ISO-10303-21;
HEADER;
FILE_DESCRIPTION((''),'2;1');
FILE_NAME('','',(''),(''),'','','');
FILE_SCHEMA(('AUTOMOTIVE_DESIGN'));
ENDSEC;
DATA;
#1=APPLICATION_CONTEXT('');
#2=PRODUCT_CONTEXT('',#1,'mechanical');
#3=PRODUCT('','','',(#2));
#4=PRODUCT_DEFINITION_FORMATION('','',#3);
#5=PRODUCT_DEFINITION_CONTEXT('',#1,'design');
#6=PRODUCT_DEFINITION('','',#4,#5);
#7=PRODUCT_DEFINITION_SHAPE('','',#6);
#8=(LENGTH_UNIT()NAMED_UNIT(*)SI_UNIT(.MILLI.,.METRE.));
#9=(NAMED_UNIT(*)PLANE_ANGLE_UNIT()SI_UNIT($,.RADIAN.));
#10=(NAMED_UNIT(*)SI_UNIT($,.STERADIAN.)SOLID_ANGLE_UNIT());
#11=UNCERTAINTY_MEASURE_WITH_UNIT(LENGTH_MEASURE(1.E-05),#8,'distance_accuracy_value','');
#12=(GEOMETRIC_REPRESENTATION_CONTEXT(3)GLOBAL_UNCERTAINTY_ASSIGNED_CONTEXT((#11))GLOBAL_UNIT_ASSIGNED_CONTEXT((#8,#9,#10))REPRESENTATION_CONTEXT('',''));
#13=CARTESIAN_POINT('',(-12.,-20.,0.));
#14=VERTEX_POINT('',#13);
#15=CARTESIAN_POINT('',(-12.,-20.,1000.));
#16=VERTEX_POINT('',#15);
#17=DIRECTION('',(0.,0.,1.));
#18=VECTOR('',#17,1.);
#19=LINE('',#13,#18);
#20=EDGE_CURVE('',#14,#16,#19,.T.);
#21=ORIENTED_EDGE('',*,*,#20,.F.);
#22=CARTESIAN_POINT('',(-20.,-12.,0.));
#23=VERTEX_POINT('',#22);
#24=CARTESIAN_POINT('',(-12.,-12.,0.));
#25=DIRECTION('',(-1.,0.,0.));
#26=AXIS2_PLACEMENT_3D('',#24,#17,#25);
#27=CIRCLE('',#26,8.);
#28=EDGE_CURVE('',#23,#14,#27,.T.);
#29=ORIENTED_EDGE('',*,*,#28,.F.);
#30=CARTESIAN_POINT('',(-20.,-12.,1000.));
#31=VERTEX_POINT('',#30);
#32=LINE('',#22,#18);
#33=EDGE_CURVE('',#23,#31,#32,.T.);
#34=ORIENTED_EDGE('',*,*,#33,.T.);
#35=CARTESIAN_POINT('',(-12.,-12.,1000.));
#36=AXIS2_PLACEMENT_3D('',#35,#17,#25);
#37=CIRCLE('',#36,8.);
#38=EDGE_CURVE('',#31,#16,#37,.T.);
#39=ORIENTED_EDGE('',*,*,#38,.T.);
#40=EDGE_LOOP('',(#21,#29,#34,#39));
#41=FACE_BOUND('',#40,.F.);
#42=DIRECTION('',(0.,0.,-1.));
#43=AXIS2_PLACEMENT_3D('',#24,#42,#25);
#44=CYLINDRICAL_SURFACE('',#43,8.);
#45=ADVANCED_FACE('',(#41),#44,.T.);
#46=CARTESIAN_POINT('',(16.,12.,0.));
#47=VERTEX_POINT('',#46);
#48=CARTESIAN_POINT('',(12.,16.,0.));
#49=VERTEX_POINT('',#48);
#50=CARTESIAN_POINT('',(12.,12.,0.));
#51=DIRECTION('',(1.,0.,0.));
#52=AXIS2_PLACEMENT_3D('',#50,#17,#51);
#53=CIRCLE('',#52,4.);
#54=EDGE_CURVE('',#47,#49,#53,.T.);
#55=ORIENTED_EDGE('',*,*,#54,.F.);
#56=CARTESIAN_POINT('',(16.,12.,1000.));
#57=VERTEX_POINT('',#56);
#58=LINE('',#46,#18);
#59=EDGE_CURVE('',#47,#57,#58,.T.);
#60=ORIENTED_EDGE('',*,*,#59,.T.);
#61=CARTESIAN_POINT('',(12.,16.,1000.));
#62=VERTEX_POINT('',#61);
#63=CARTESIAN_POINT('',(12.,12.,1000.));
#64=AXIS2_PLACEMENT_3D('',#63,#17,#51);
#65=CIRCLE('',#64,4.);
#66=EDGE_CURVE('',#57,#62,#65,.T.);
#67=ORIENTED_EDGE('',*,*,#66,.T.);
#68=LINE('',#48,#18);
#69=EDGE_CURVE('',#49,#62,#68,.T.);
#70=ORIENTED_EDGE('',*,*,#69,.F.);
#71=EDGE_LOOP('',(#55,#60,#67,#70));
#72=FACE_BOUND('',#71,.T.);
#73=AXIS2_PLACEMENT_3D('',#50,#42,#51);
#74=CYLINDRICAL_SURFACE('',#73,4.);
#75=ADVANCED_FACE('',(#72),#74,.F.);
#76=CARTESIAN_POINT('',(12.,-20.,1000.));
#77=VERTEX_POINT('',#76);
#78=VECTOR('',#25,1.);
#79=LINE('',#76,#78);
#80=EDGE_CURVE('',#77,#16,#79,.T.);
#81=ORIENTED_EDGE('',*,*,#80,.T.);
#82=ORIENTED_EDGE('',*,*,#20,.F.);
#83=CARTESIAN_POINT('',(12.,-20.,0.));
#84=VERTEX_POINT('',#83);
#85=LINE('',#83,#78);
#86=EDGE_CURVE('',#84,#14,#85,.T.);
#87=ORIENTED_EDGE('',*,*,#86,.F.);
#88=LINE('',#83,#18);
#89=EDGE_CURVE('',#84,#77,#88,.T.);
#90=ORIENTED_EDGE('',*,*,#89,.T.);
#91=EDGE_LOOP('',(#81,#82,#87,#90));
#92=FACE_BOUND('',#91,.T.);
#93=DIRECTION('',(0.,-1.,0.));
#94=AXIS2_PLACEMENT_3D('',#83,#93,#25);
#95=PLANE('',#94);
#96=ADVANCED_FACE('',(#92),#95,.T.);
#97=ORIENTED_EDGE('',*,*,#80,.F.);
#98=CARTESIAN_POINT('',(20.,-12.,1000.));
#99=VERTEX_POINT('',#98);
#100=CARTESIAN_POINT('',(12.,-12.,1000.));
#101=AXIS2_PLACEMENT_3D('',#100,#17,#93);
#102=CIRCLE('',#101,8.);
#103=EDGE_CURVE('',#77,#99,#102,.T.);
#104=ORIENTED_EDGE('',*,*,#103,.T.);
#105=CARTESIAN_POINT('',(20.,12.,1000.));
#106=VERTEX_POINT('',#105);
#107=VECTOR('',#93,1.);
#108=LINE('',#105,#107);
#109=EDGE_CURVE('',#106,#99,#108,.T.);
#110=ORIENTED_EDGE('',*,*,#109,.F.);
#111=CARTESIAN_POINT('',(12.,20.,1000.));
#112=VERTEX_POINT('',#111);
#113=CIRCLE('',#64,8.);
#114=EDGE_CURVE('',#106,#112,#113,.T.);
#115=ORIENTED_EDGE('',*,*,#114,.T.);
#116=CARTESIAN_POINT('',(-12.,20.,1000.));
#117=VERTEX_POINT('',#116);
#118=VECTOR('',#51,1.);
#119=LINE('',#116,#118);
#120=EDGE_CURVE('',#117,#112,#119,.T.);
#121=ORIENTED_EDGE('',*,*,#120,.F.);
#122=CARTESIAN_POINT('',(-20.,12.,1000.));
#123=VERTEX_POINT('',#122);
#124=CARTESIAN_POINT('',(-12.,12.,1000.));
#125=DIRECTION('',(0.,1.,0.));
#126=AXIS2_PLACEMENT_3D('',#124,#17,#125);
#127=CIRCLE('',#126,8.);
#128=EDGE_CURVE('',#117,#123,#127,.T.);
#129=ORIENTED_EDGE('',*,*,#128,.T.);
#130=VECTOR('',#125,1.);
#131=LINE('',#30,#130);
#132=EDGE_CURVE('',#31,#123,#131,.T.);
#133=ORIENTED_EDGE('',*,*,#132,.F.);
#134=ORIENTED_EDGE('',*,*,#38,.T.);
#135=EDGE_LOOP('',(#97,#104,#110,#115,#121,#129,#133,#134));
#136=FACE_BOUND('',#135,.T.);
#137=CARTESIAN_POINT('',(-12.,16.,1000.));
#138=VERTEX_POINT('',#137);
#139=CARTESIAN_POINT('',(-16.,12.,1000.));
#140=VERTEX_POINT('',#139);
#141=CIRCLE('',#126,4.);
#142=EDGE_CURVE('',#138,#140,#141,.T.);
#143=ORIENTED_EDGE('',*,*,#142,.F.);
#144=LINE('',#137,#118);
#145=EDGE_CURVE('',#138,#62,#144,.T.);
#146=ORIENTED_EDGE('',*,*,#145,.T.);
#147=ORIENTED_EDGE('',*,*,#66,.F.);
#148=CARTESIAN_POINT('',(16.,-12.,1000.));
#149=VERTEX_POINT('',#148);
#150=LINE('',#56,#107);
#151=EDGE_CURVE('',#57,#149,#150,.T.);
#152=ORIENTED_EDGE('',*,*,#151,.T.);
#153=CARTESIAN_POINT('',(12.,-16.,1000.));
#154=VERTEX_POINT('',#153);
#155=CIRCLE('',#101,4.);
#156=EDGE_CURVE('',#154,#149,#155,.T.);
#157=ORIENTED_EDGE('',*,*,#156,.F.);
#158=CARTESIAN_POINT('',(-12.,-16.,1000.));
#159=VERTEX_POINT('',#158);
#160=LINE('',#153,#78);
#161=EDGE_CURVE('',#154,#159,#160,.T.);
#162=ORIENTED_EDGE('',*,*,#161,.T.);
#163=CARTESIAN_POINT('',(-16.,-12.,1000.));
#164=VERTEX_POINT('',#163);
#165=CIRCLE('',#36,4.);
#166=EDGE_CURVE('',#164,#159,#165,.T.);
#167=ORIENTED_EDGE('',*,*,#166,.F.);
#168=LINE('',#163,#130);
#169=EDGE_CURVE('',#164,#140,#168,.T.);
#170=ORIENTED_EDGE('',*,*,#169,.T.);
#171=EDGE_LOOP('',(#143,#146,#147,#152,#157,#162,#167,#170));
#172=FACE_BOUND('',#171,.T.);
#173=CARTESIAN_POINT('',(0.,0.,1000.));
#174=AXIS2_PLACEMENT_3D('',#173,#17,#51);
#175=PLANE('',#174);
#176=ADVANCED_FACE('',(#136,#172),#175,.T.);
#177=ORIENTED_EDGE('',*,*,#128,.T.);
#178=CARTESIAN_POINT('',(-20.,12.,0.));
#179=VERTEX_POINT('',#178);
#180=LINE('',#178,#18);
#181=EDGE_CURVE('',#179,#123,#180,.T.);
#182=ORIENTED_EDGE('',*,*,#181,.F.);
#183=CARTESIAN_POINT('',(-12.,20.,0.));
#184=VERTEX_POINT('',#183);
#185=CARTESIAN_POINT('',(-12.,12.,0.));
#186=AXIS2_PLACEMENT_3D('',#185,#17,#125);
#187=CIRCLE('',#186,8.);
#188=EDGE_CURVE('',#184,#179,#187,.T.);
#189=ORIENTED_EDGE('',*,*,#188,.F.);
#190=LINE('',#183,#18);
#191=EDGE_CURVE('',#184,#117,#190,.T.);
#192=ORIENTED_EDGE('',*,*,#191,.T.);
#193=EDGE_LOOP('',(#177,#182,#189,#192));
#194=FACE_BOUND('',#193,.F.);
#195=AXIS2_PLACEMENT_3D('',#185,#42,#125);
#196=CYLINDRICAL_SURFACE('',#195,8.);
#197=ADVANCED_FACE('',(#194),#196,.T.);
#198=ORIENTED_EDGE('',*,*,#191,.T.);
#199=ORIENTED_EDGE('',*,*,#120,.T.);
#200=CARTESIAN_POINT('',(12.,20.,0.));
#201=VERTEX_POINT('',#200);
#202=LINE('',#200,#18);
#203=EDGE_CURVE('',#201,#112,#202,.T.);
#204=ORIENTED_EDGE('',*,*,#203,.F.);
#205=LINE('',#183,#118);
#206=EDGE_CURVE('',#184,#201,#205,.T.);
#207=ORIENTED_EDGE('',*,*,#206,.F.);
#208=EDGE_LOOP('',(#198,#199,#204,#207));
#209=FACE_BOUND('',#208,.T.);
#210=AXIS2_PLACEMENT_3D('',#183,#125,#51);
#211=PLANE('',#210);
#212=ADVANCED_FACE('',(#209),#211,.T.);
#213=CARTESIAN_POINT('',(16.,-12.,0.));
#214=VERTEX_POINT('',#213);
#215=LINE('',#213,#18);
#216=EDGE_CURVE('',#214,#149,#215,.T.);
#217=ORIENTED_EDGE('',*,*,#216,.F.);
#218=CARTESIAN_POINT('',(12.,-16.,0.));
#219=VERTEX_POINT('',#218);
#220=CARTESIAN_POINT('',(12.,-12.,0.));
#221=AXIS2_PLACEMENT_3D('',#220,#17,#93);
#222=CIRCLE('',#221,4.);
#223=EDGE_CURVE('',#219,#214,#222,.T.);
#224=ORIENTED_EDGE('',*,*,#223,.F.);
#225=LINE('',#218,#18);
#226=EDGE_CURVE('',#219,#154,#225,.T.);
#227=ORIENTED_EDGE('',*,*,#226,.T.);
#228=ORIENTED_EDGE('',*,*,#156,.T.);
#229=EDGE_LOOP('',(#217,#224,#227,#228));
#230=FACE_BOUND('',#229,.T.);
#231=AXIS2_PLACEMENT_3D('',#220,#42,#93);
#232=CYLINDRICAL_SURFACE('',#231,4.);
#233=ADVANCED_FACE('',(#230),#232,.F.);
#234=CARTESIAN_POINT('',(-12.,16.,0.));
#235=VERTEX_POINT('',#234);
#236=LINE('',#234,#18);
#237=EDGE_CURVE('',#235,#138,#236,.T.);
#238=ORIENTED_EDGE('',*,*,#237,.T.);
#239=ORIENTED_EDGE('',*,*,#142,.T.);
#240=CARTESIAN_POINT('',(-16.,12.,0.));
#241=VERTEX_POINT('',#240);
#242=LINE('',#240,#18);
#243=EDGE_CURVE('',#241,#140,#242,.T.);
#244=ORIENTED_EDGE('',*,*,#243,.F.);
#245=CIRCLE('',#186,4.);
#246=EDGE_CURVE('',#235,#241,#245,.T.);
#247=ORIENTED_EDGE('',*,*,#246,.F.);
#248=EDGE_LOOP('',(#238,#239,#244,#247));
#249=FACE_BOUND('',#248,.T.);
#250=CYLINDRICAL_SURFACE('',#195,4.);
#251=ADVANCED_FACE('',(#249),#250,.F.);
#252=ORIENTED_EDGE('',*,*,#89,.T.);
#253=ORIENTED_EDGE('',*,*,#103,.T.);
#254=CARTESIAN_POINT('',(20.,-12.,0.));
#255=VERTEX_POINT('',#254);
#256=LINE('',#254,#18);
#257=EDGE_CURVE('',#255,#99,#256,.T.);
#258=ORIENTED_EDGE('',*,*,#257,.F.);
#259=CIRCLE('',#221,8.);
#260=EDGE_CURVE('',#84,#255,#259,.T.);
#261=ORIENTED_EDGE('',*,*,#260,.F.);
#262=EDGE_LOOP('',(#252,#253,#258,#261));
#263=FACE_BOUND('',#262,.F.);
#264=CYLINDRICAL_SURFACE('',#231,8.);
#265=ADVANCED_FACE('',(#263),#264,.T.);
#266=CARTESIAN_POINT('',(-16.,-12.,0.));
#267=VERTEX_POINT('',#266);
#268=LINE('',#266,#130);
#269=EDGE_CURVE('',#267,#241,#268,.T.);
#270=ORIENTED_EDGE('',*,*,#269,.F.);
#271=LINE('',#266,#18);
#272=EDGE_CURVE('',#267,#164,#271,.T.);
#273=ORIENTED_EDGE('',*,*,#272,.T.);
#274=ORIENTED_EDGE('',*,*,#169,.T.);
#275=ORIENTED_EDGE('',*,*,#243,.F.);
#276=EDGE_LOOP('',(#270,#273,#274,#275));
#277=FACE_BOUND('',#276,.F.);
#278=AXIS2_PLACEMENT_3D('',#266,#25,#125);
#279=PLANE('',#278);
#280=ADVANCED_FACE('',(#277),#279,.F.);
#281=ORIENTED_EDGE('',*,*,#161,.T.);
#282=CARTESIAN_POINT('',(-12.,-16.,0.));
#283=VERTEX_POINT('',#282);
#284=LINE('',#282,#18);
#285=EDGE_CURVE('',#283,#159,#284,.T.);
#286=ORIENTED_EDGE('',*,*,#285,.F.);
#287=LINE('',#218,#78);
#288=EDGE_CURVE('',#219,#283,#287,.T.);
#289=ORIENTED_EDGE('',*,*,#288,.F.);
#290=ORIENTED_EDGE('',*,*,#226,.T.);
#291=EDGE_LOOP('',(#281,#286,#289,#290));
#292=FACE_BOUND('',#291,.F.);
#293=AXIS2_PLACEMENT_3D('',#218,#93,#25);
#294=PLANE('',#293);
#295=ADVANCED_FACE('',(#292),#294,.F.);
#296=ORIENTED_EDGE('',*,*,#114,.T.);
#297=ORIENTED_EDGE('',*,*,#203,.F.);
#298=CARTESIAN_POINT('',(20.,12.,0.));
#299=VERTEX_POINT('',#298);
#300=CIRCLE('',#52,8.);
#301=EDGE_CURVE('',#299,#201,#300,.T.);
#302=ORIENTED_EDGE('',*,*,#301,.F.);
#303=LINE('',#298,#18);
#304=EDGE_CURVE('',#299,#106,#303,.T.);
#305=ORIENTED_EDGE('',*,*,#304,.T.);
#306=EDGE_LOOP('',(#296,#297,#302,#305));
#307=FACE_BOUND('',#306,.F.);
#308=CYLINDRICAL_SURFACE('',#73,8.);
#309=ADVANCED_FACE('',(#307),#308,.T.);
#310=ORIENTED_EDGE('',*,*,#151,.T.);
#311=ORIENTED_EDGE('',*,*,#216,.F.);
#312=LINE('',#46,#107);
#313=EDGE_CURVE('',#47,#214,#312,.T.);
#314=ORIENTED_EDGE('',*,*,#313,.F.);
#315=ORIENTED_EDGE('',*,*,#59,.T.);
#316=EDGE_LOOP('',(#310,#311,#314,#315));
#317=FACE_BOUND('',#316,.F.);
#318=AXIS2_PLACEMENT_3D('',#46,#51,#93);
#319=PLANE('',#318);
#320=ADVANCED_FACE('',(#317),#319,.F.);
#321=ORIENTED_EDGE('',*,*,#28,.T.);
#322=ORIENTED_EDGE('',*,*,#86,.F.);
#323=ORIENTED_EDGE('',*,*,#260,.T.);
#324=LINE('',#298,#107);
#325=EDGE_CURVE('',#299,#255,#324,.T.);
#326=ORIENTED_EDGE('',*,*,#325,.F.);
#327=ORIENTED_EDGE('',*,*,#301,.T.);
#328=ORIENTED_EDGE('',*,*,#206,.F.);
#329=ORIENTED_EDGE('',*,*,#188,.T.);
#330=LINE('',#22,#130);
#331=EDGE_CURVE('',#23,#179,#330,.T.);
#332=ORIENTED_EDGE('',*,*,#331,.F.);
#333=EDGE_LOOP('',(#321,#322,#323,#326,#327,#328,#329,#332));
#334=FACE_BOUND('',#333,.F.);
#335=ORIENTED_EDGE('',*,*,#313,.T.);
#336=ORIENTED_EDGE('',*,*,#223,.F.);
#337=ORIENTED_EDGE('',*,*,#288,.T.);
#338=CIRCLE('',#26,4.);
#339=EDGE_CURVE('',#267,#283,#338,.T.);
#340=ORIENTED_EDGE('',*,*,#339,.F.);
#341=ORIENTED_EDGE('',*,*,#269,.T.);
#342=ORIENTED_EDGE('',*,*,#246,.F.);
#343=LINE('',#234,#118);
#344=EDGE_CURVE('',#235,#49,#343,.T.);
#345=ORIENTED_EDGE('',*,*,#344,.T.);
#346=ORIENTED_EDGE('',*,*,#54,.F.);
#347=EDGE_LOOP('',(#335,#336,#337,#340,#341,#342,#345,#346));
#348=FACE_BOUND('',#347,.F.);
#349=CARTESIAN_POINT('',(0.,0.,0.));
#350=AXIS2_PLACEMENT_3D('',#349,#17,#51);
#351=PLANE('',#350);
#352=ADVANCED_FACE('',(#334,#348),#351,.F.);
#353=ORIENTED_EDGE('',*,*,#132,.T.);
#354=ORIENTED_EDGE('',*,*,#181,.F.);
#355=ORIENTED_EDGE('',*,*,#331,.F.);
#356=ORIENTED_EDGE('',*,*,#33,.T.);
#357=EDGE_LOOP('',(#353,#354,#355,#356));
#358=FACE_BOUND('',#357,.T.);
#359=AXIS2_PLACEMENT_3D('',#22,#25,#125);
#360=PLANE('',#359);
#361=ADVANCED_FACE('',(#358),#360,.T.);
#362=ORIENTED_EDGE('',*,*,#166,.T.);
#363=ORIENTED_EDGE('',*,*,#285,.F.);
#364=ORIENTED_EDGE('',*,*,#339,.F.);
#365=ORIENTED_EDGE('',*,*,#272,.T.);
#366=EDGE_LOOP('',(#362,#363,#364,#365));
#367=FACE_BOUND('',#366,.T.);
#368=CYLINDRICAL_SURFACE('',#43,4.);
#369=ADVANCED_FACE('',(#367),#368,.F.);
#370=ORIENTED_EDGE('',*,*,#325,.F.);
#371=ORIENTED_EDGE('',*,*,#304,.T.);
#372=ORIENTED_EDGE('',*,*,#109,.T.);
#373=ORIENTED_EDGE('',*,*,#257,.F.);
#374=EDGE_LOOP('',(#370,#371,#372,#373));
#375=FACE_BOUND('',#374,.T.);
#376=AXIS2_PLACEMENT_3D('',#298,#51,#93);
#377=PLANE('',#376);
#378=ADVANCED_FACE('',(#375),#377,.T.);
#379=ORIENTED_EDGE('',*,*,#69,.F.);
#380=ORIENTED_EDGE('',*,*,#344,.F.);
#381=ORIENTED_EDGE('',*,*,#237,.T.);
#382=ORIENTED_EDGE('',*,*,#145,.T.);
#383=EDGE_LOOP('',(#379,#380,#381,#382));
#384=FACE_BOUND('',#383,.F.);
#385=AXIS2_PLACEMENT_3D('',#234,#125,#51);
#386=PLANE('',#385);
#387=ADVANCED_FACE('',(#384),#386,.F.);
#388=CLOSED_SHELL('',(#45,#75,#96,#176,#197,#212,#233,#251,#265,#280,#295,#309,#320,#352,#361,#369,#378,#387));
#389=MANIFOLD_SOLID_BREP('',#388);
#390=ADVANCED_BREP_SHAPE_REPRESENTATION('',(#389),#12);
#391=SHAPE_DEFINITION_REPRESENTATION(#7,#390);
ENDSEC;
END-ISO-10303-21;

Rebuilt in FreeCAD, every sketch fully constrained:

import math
import FreeCAD as App
import Part
import Sketcher

doc = App.newDocument("Part")
body = doc.addObject("PartDesign::Body", "Body")

# Sketch on XY plane
sketch1 = body.newObject("Sketcher::SketchObject", "Sketch")
sketch1.AttachmentSupport = (doc.getObject("XY_Plane"), [""])
sketch1.MapMode = "FlatFace"
sketch1.addGeometry([
    Part.LineSegment(App.Vector(-20, 12, 0), App.Vector(-20, -12, 0)),  # 0
    Part.ArcOfCircle(Part.Circle(App.Vector(-12, -12, 0), App.Vector(0, 0, 1), 8), math.radians(180), math.radians(270)),  # 1
    Part.LineSegment(App.Vector(-12, -20, 0), App.Vector(12, -20, 0)),  # 2
    Part.ArcOfCircle(Part.Circle(App.Vector(12, -12, 0), App.Vector(0, 0, 1), 8), math.radians(-90), math.radians(0)),  # 3
    Part.LineSegment(App.Vector(20, -12, 0), App.Vector(20, 12, 0)),  # 4
    Part.ArcOfCircle(Part.Circle(App.Vector(12, 12, 0), App.Vector(0, 0, 1), 8), math.radians(0), math.radians(90)),  # 5
    Part.LineSegment(App.Vector(12, 20, 0), App.Vector(-12, 20, 0)),  # 6
    Part.ArcOfCircle(Part.Circle(App.Vector(-12, 12, 0), App.Vector(0, 0, 1), 8), math.radians(90), math.radians(180)),  # 7
    Part.ArcOfCircle(Part.Circle(App.Vector(-12, 12, 0), App.Vector(0, 0, 1), 4), math.radians(90), math.radians(180)),  # 8
    Part.LineSegment(App.Vector(-12, 16, 0), App.Vector(12, 16, 0)),  # 9
    Part.ArcOfCircle(Part.Circle(App.Vector(12, 12, 0), App.Vector(0, 0, 1), 4), math.radians(0), math.radians(90)),  # 10
    Part.LineSegment(App.Vector(16, 12, 0), App.Vector(16, -12, 0)),  # 11
    Part.ArcOfCircle(Part.Circle(App.Vector(12, -12, 0), App.Vector(0, 0, 1), 4), math.radians(-90), math.radians(0)),  # 12
    Part.LineSegment(App.Vector(12, -16, 0), App.Vector(-12, -16, 0)),  # 13
    Part.ArcOfCircle(Part.Circle(App.Vector(-12, -12, 0), App.Vector(0, 0, 1), 4), math.radians(180), math.radians(270)),  # 14
    Part.LineSegment(App.Vector(-16, -12, 0), App.Vector(-16, 12, 0)),  # 15
], False)
sketch1.addConstraint([
    Sketcher.Constraint("Tangent", 0, 2, 1, 1),
    Sketcher.Constraint("Tangent", 1, 2, 2, 1),
    Sketcher.Constraint("Tangent", 2, 2, 3, 1),
    Sketcher.Constraint("Tangent", 3, 2, 4, 1),
    Sketcher.Constraint("Tangent", 4, 2, 5, 1),
    Sketcher.Constraint("Tangent", 5, 2, 6, 1),
    Sketcher.Constraint("Tangent", 6, 2, 7, 1),
    Sketcher.Constraint("Tangent", 7, 2, 0, 1),
    Sketcher.Constraint("Tangent", 8, 1, 9, 1),
    Sketcher.Constraint("Tangent", 9, 2, 10, 2),
    Sketcher.Constraint("Tangent", 10, 1, 11, 1),
    Sketcher.Constraint("Tangent", 11, 2, 12, 2),
    Sketcher.Constraint("Tangent", 12, 1, 13, 1),
    Sketcher.Constraint("Tangent", 13, 2, 14, 2),
    Sketcher.Constraint("Tangent", 14, 1, 15, 1),
    Sketcher.Constraint("Tangent", 15, 2, 8, 2),
    Sketcher.Constraint("Vertical", 0),
    Sketcher.Constraint("Horizontal", 2),
    Sketcher.Constraint("Vertical", 4),
    Sketcher.Constraint("Horizontal", 6),
    Sketcher.Constraint("Horizontal", 9),
    Sketcher.Constraint("Vertical", 11),
    Sketcher.Constraint("Horizontal", 13),
    Sketcher.Constraint("Vertical", 15),
    Sketcher.Constraint("Coincident", 8, 3, 7, 3),
    Sketcher.Constraint("Coincident", 10, 3, 5, 3),
    Sketcher.Constraint("Coincident", 12, 3, 3, 3),
    Sketcher.Constraint("Equal", 1, 3),
    Sketcher.Constraint("Equal", 3, 5),
    Sketcher.Constraint("Equal", 5, 7),
    Sketcher.Constraint("Equal", 12, 14),
    Sketcher.Constraint("Symmetric", 1, 3, 5, 3, -1, 1),
    Sketcher.Constraint("Equal", 13, 0),
    Sketcher.Constraint("Radius", 1, 8.0),
    Sketcher.Constraint("Radius", 8, 4.0),
    Sketcher.Constraint("DistanceX", 0, 2, -1, 1, 20.0),
])
pad1 = body.newObject("PartDesign::Pad", "Pad")
pad1.Profile = sketch1
pad1.Length = 1000

doc.recompute()
